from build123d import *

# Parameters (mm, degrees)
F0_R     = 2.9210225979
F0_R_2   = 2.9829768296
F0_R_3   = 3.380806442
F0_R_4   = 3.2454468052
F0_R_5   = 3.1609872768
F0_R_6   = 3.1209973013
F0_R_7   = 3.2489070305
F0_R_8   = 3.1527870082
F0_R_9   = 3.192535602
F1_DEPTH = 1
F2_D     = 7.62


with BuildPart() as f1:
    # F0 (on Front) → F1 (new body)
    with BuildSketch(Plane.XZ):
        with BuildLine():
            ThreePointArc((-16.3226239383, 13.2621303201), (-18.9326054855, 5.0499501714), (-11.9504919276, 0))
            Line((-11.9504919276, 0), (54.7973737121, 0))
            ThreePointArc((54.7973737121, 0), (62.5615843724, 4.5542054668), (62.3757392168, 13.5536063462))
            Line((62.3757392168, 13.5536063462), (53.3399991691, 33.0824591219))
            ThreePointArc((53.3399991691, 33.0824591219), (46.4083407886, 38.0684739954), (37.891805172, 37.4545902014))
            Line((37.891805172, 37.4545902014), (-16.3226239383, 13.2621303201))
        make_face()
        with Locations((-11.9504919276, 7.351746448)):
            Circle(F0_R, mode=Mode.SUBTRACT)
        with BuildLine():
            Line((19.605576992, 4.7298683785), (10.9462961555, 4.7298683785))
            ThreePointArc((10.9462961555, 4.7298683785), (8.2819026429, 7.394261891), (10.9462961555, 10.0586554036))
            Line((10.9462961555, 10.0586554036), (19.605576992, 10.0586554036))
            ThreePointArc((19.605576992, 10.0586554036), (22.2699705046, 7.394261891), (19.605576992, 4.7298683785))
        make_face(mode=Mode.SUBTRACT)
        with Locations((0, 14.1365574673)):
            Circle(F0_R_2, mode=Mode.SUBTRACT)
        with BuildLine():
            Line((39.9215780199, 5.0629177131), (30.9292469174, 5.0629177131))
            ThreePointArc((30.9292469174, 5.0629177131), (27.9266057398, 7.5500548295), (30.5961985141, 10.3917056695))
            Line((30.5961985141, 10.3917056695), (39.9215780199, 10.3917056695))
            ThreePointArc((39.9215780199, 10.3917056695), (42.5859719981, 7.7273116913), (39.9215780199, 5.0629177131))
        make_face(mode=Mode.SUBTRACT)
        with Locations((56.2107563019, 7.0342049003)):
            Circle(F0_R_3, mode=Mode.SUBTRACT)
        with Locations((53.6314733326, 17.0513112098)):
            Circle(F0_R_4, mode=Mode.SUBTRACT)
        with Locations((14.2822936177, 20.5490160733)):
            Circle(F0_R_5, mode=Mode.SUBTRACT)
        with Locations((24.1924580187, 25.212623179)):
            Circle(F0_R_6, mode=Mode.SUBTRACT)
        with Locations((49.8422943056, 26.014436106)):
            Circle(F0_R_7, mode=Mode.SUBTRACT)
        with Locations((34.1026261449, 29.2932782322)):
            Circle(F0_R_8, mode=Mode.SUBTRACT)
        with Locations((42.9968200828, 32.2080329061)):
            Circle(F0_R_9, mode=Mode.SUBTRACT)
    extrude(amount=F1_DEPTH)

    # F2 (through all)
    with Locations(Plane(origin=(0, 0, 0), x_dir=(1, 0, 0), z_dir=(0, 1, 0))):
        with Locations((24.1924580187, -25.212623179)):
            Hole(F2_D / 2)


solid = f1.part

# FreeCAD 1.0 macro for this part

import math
import FreeCAD as App
import Part
import Sketcher
Q = App.Units.Quantity

doc = App.newDocument("Part")
body = doc.addObject("PartDesign::Body", "Body")

# Sketch on XZ plane
sketch1 = body.newObject("Sketcher::SketchObject", "Sketch")
sketch1.AttachmentSupport = (doc.getObject("XZ_Plane"), [""])
sketch1.MapMode = "FlatFace"
sketch1.addGeometry(Part.ArcOfCircle(Part.Circle(App.Vector(-12, 7.4, 0), App.Vector(0, 0, 1), 7.4), math.radians(126), math.radians(270)), False)
sketch1.addGeometry(Part.LineSegment(App.Vector(-12, 0, 0), App.Vector(54.8, 0, 0)), False)
sketch1.addGeometry(Part.ArcOfCircle(Part.Circle(App.Vector(54.8, 8.9, 0), App.Vector(0, 0, 1), 8.9), math.radians(-90), math.radians(32)), False)
sketch1.addGeometry(Part.LineSegment(App.Vector(62.4, 13.6, 0), App.Vector(53.3, 33.1, 0)), False)
sketch1.addGeometry(Part.ArcOfCircle(Part.Circle(App.Vector(43, 26, 0), App.Vector(0, 0, 1), 12.5), math.radians(34), math.radians(114)), False)
sketch1.addGeometry(Part.LineSegment(App.Vector(37.9, 37.5, 0), App.Vector(-16.3, 13.3, 0)), False)
sketch1.addGeometry(Part.Circle(App.Vector(-12, 7.4, 0), App.Vector(0, 0, 1), 2.9), False)
sketch1.addGeometry(Part.ArcOfCircle(Part.Circle(App.Vector(19.6, 7.4, 0), App.Vector(0, 0, 1), 2.7), math.radians(-90), math.radians(90)), False)
sketch1.addGeometry(Part.LineSegment(App.Vector(19.6, 4.7, 0), App.Vector(10.9, 4.7, 0)), False)
sketch1.addGeometry(Part.ArcOfCircle(Part.Circle(App.Vector(10.9, 7.4, 0), App.Vector(0, 0, 1), 2.7), math.radians(90), math.radians(270)), False)
sketch1.addGeometry(Part.LineSegment(App.Vector(10.9, 10.1, 0), App.Vector(19.6, 10.1, 0)), False)
sketch1.addGeometry(Part.Circle(App.Vector(0, 14.1, 0), App.Vector(0, 0, 1), 3), False)
sketch1.addGeometry(Part.ArcOfCircle(Part.Circle(App.Vector(39.9, 7.7, 0), App.Vector(0, 0, 1), 2.7), math.radians(-90), math.radians(90)), False)
sketch1.addGeometry(Part.LineSegment(App.Vector(39.9, 5.1, 0), App.Vector(30.9, 5.1, 0)), False)
sketch1.addGeometry(Part.ArcOfCircle(Part.Circle(App.Vector(30.6, 7.7, 0), App.Vector(0, 0, 1), 2.7), math.radians(90), math.radians(277)), False)
sketch1.addGeometry(Part.LineSegment(App.Vector(30.6, 10.4, 0), App.Vector(39.9, 10.4, 0)), False)
sketch1.addGeometry(Part.Circle(App.Vector(56.2, 7, 0), App.Vector(0, 0, 1), 3.4), False)
sketch1.addGeometry(Part.Circle(App.Vector(53.6, 17.1, 0), App.Vector(0, 0, 1), 3.2), False)
sketch1.addGeometry(Part.Circle(App.Vector(14.3, 20.5, 0), App.Vector(0, 0, 1), 3.2), False)
sketch1.addGeometry(Part.Circle(App.Vector(24.2, 25.2, 0), App.Vector(0, 0, 1), 3.1), False)
sketch1.addGeometry(Part.Circle(App.Vector(49.8, 26, 0), App.Vector(0, 0, 1), 3.2), False)
sketch1.addGeometry(Part.Circle(App.Vector(34.1, 29.3, 0), App.Vector(0, 0, 1), 3.2), False)
sketch1.addGeometry(Part.Circle(App.Vector(43, 32.2, 0), App.Vector(0, 0, 1), 3.2), False)
sketch1.addConstraint(Sketcher.Constraint("Tangent", 0, 2, 1, 1))
sketch1.addConstraint(Sketcher.Constraint("Tangent", 1, 2, 2, 1))
sketch1.addConstraint(Sketcher.Constraint("Coincident", 2, 2, 3, 1))
sketch1.addConstraint(Sketcher.Constraint("Coincident", 3, 2, 4, 1))
sketch1.addConstraint(Sketcher.Constraint("Tangent", 4, 2, 5, 1))
sketch1.addConstraint(Sketcher.Constraint("Coincident", 5, 2, 0, 1))
sketch1.addConstraint(Sketcher.Constraint("Tangent", 7, 1, 8, 1))
sketch1.addConstraint(Sketcher.Constraint("Tangent", 8, 2, 9, 2))
sketch1.addConstraint(Sketcher.Constraint("Tangent", 9, 1, 10, 1))
sketch1.addConstraint(Sketcher.Constraint("Tangent", 10, 2, 7, 2))
sketch1.addConstraint(Sketcher.Constraint("Tangent", 12, 1, 13, 1))
sketch1.addConstraint(Sketcher.Constraint("Coincident", 13, 2, 14, 2))
sketch1.addConstraint(Sketcher.Constraint("Tangent", 14, 1, 15, 1))
sketch1.addConstraint(Sketcher.Constraint("Tangent", 15, 2, 12, 2))
sketch1.addConstraint(Sketcher.Constraint("Horizontal", 1))
sketch1.addConstraint(Sketcher.Constraint("Horizontal", 8))
sketch1.addConstraint(Sketcher.Constraint("Horizontal", 10))
sketch1.addConstraint(Sketcher.Constraint("Horizontal", 13))
sketch1.addConstraint(Sketcher.Constraint("Horizontal", 15))
sketch1.addConstraint(Sketcher.Constraint("Coincident", 6, 3, 0, 3))
sketch1.addConstraint(Sketcher.Constraint("Equal", 9, 12))
sketch1.addConstraint(Sketcher.Constraint("PointOnObject", 11, 3, -2))
sketch1.addConstraint(Sketcher.Constraint("PointOnObject", 0, 2, -1))
sketch1.addConstraint(Sketcher.Constraint("Horizontal", 4, 3, 20, 3))
sketch1.addConstraint(Sketcher.Constraint("Vertical", 4, 3, 22, 3))
sketch1.addConstraint(Sketcher.Constraint("Radius", 4, Q("12.527502 mm")))
sketch1.addConstraint(Sketcher.Constraint("Radius", 14, Q("2.674802 mm")))
sketch1.addConstraint(Sketcher.Constraint("Diameter", 22, Q("6.385071 mm")))
sketch1.addConstraint(Sketcher.Constraint("DistanceX", -1, 1, 3, 2, Q("53.339999 mm")))
sketch1.addConstraint(Sketcher.Constraint("Diameter", 6, Q("5.842045 mm")))
sketch1.addConstraint(Sketcher.Constraint("Diameter", 11, Q("5.965954 mm")))
sketch1.addConstraint(Sketcher.Constraint("Diameter", 16, Q("6.761613 mm")))
sketch1.addConstraint(Sketcher.Constraint("Diameter", 17, Q("6.490894 mm")))
sketch1.addConstraint(Sketcher.Constraint("Diameter", 18, Q("6.321975 mm")))
sketch1.addConstraint(Sketcher.Constraint("Diameter", 19, Q("6.241995 mm")))
sketch1.addConstraint(Sketcher.Constraint("Diameter", 20, Q("6.497814 mm")))
sketch1.addConstraint(Sketcher.Constraint("Diameter", 21, Q("6.305574 mm")))
sketch1.addConstraint(Sketcher.Constraint("Radius", 0, Q("7.351746 mm")))
sketch1.addConstraint(Sketcher.Constraint("Radius", 2, Q("8.895487 mm")))
sketch1.addConstraint(Sketcher.Constraint("Radius", 7, Q("2.664394 mm")))
sketch1.addConstraint(Sketcher.Constraint("DistanceX", 7, 3, 12, 3, Q("20.316001 mm")))
sketch1.addConstraint(Sketcher.Constraint("DistanceY", 12, 3, 17, 3, Q("9.324 mm")))
sketch1.addConstraint(Sketcher.Constraint("DistanceX", 8, 2, 8, 1, Q("8.659281 mm")))
sketch1.addConstraint(Sketcher.Constraint("DistanceX", 13, 2, 13, 1, Q("8.992331 mm")))
sketch1.addConstraint(Sketcher.Constraint("DistanceX", -1, 1, 14, 3, Q("30.596199 mm")))
sketch1.addConstraint(Sketcher.Constraint("DistanceY", 16, 3, 14, 3, Q("0.682699 mm")))
sketch1.addConstraint(Sketcher.Constraint("DistanceX", 17, 3, 2, 3, Q("1.1659 mm")))
sketch1.addConstraint(Sketcher.Constraint("DistanceY", 16, 3, 2, 2, Q("6.519401 mm")))
sketch1.addConstraint(Sketcher.Constraint("DistanceX", 1, 1, 1, 2, Q("66.747866 mm")))
sketch1.addConstraint(Sketcher.Constraint("DistanceX", 0, 3, -1, 1, Q("11.950492 mm")))
sketch1.addConstraint(Sketcher.Constraint("DistanceX", -1, 1, 4, 3, Q("42.99682 mm")))
sketch1.addConstraint(Sketcher.Constraint("DistanceY", -1, 1, 7, 3, Q("7.394262 mm")))
sketch1.addConstraint(Sketcher.Constraint("DistanceY", -1, 1, 12, 3, Q("7.727312 mm")))
sketch1.addConstraint(Sketcher.Constraint("DistanceX", -1, 1, 19, 3, Q("24.192458 mm")))
sketch1.addConstraint(Sketcher.Constraint("DistanceY", -1, 1, 21, 3, Q("29.293278 mm")))
sketch1.addConstraint(Sketcher.Constraint("DistanceY", -1, 1, 3, 2, Q("33.082459 mm")))
sketch1.addConstraint(Sketcher.Constraint("DistanceY", -1, 1, 4, 2, Q("37.45459 mm")))
sketch1.addConstraint(Sketcher.Constraint("DistanceY", 0, 3, 11, 3, Q("6.784811 mm")))
sketch1.addConstraint(Sketcher.Constraint("DistanceX", 12, 3, 16, 3, Q("16.289178 mm")))
sketch1.addConstraint(Sketcher.Constraint("DistanceY", 11, 3, 18, 3, Q("6.412459 mm")))
sketch1.addConstraint(Sketcher.Constraint("DistanceY", 7, 3, 19, 3, Q("17.818361 mm")))
sketch1.addConstraint(Sketcher.Constraint("DistanceX", 20, 3, 17, 3, Q("3.789179 mm")))
sketch1.addConstraint(Sketcher.Constraint("DistanceX", 19, 3, 21, 3, Q("9.910168 mm")))
sketch1.addConstraint(Sketcher.Constraint("DistanceY", 17, 3, 22, 3, Q("15.156722 mm")))
sketch1.addConstraint(Sketcher.Constraint("DistanceX", -1, 1, 18, 3, Q("14.282294 mm")))
pad1 = body.newObject("PartDesign::Pad", "Pad")
pad1.Profile = sketch1
pad1.Length = 1

# Sketch on XZ plane
sketch2 = body.newObject("Sketcher::SketchObject", "Sketch001")
sketch2.AttachmentSupport = (doc.getObject("XZ_Plane"), [""])
sketch2.MapMode = "FlatFace"
sketch2.addGeometry(Part.Circle(App.Vector(24.2, 25.2, 0), App.Vector(0, 0, 1), 3.8), False)
sketch2.addConstraint(Sketcher.Constraint("Diameter", 0, Q("7.62 mm")))
sketch2.addConstraint(Sketcher.Constraint("DistanceX", -1, 1, 0, 3, Q("24.192458 mm")))
sketch2.addConstraint(Sketcher.Constraint("DistanceY", -1, 1, 0, 3, Q("25.212623 mm")))
doc.recompute()
hole = body.newObject("PartDesign::Hole", "Hole")
hole.Profile = sketch2
hole.ThreadType = "None"
hole.Diameter = 7.62
hole.DepthType = "ThroughAll"
hole.Reversed = True

doc.recompute()
